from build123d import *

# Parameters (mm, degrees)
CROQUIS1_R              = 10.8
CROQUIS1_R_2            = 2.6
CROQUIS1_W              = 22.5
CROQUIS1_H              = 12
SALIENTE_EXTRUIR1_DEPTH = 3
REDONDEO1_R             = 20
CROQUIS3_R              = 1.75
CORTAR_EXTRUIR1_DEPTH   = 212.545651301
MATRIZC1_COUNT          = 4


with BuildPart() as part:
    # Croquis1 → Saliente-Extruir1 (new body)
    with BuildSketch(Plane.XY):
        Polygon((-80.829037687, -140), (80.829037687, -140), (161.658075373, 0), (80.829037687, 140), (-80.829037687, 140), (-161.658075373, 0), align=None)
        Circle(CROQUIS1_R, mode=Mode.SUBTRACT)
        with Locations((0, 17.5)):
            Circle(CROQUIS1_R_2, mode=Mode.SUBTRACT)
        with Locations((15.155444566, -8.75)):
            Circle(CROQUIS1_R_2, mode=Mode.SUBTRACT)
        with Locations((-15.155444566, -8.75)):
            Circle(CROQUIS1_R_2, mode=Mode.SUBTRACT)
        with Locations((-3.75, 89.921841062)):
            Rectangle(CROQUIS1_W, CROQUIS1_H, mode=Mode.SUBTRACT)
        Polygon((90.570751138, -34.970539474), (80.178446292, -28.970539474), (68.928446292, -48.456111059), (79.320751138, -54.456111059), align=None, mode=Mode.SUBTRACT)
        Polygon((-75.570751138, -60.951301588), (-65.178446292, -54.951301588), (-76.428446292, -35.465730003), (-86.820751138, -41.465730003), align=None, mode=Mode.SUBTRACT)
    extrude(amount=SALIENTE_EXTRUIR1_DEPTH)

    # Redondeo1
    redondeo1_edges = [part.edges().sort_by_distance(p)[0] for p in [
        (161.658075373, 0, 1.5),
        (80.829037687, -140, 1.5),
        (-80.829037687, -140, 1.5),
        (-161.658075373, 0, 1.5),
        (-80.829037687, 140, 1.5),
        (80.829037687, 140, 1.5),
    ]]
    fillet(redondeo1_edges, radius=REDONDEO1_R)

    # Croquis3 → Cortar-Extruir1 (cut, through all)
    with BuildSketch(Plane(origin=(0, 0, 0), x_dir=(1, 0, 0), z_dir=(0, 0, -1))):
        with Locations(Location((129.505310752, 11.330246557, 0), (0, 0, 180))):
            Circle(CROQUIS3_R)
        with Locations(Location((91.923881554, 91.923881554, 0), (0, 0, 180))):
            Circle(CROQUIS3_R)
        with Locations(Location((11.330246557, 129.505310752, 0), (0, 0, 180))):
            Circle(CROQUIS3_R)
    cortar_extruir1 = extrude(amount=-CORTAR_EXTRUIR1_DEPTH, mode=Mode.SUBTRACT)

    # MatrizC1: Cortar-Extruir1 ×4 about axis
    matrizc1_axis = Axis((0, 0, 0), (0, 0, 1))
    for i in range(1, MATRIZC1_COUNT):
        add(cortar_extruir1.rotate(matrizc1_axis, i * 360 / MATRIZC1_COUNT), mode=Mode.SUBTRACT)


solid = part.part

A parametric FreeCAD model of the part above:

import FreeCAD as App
import Part
import Sketcher
from FreeCAD import Vector
Q = App.Units.Quantity


def edges_at(feature, points):
    """Names of the edges that pass closest to the given points."""
    edges = feature.Shape.Edges
    near = lambda p: min(range(len(edges)), key=lambda i: edges[i].distToShape(Part.Vertex(*p))[0])
    return sorted({f"Edge{near(p) + 1}" for p in points})

doc = App.newDocument("Part")
params = doc.addObject("Spreadsheet::Sheet", "Params")
for row, (alias, value) in enumerate([
    ("sketch1_diameter", "5.2 mm"),
    ("sketch1_diameter2", "21.6 mm"),
    ("sketch1_height", "12 mm"),
    ("sketch1_length", "12 mm"),
    ("sketch1_width", "22.5 mm"),
    ("pad1_length", "3 mm"),
    ("fillet_radius", "20 mm"),
    ("sketch2_diameter", "3.5 mm"),
], start=1):
    params.set(f"A{row}", alias)
    params.set(f"B{row}", "=" + value)
    params.setAlias(f"B{row}", alias)

body = doc.addObject("PartDesign::Body", "Body")

sketch1 = body.newObject("Sketcher::SketchObject", "Sketch")
sketch1.AttachmentSupport = (doc.getObject("XY_Plane"), [""])
sketch1.MapMode = "FlatFace"
sketch1.addGeometry([
    Part.LineSegment(Vector(-80.8, -140, 0), Vector(80.8, -140, 0)),
    Part.LineSegment(Vector(80.8, -140, 0), Vector(161.7, 0, 0)),
    Part.LineSegment(Vector(161.7, 0, 0), Vector(80.8, 140, 0)),
    Part.LineSegment(Vector(80.8, 140, 0), Vector(-80.8, 140, 0)),
    Part.LineSegment(Vector(-80.8, 140, 0), Vector(-161.7, 0, 0)),
    Part.LineSegment(Vector(-161.7, 0, 0), Vector(-80.8, -140, 0)),
    Part.LineSegment(Vector(-65.2, -55, 0), Vector(-75.6, -61, 0)),
    Part.LineSegment(Vector(-75.6, -61, 0), Vector(-86.8, -41.5, 0)),
    Part.LineSegment(Vector(-86.8, -41.5, 0), Vector(-76.4, -35.5, 0)),
    Part.LineSegment(Vector(-76.4, -35.5, 0), Vector(-65.2, -55, 0)),
    Part.Circle(Vector(-15.2, -8.8, 0), Vector(0, 0, 1), 2.6),
    Part.Circle(Vector(0, 0, 0), Vector(0, 0, 1), 10.8),
    Part.LineSegment(Vector(80.2, -29, 0), Vector(90.6, -35, 0)),
    Part.LineSegment(Vector(90.6, -35, 0), Vector(79.3, -54.5, 0)),
    Part.LineSegment(Vector(79.3, -54.5, 0), Vector(68.9, -48.5, 0)),
    Part.LineSegment(Vector(68.9, -48.5, 0), Vector(80.2, -29, 0)),
    Part.Circle(Vector(15.2, -8.8, 0), Vector(0, 0, 1), 2.6),
    Part.Circle(Vector(0, 17.5, 0), Vector(0, 0, 1), 2.6),
    Part.LineSegment(Vector(7.5, 83.9, 0), Vector(-15, 83.9, 0)),
    Part.LineSegment(Vector(-15, 83.9, 0), Vector(-15, 95.9, 0)),
    Part.LineSegment(Vector(-15, 95.9, 0), Vector(7.5, 95.9, 0)),
    Part.LineSegment(Vector(7.5, 95.9, 0), Vector(7.5, 83.9, 0)),
], False)
sketch1.addConstraint([
    Sketcher.Constraint("Coincident", 0, 2, 1, 1),
    Sketcher.Constraint("Coincident", 1, 2, 2, 1),
    Sketcher.Constraint("Coincident", 2, 2, 3, 1),
    Sketcher.Constraint("Coincident", 3, 2, 4, 1),
    Sketcher.Constraint("Coincident", 4, 2, 5, 1),
    Sketcher.Constraint("Coincident", 5, 2, 0, 1),
    Sketcher.Constraint("Coincident", 6, 2, 7, 1),
    Sketcher.Constraint("Coincident", 7, 2, 8, 1),
    Sketcher.Constraint("Coincident", 8, 2, 9, 1),
    Sketcher.Constraint("Coincident", 9, 2, 6, 1),
    Sketcher.Constraint("Coincident", 12, 2, 13, 1),
    Sketcher.Constraint("Coincident", 13, 2, 14, 1),
    Sketcher.Constraint("Coincident", 14, 2, 15, 1),
    Sketcher.Constraint("Coincident", 15, 2, 12, 1),
    Sketcher.Constraint("Coincident", 18, 2, 19, 1),
    Sketcher.Constraint("Coincident", 19, 2, 20, 1),
    Sketcher.Constraint("Coincident", 20, 2, 21, 1),
    Sketcher.Constraint("Coincident", 21, 2, 18, 1),
    Sketcher.Constraint("Horizontal", 0),
    Sketcher.Constraint("Horizontal", 3),
    Sketcher.Constraint("Horizontal", 18),
    Sketcher.Constraint("Vertical", 19),
    Sketcher.Constraint("Horizontal", 20),
    Sketcher.Constraint("Vertical", 21),
    Sketcher.Constraint("Coincident", 11, 3, -1, 1),
    Sketcher.Constraint("Equal", 10, 16),
    Sketcher.Constraint("Equal", 16, 17),
    Sketcher.Constraint("Symmetric", 0, 2, 3, 2, -1, 1),
    Sketcher.Constraint("Symmetric", 1, 2, 4, 2, -1, 1),
    Sketcher.Constraint("Symmetric", 10, 3, 16, 3, -2),
    Sketcher.Constraint("PointOnObject", 17, 3, -2),
    Sketcher.Constraint("PointOnObject", 1, 2, -1),
    Sketcher.Constraint("Parallel", 2, 5),
    Sketcher.Constraint("Perpendicular", 5, 6),
    Sketcher.Constraint("Perpendicular", 6, 7),
    Sketcher.Constraint("Perpendicular", 7, 8),
    Sketcher.Constraint("Perpendicular", 8, 9),
    Sketcher.Constraint("Perpendicular", 4, 12),
    Sketcher.Constraint("Perpendicular", 12, 13),
    Sketcher.Constraint("Perpendicular", 13, 14),
    Sketcher.Constraint("Perpendicular", 14, 15),
    Sketcher.Constraint("Vertical", 0, 2, 2, 2),
    Sketcher.Constraint("Equal", 8, 12),
    Sketcher.Constraint("Equal", 9, 13),
    Sketcher.Constraint("Diameter", 10, 5.2),
    Sketcher.Constraint("Diameter", 11, 21.6),
    Sketcher.Constraint("DistanceY", 19, 1, 19, 2, 12.0),
    Sketcher.Constraint("Angle", 1, Q("60 deg")),
    Sketcher.Constraint("Distance", 6, 12.0),
    Sketcher.Constraint("DistanceX", 18, 2, 18, 1, 22.5),
    Sketcher.Constraint("DistanceY", 0, 2, -1, 1, 140.0),
    Sketcher.Constraint("DistanceX", 18, 2, -1, 1, 15.0),
    Sketcher.Constraint("Distance", 7, 22.5),
    Sketcher.Constraint("DistanceY", -1, 1, 17, 3, 17.5),
    Sketcher.Constraint("DistanceY", 10, 3, -1, 1, 8.75),
    Sketcher.Constraint("DistanceX", 8, 2, 10, 3, 61.273002),
    Sketcher.Constraint("DistanceX", 16, 3, 14, 2, 53.773002),
    Sketcher.Constraint("DistanceY", 6, 2, -1, 1, 60.951302),
    Sketcher.Constraint("DistanceX", 0, 1, 0, 2, 161.658075),
    Sketcher.Constraint("DistanceX", 6, 2, -1, 1, 75.570751),
    Sketcher.Constraint("DistanceY", 12, 2, -1, 1, 34.970539),
    Sketcher.Constraint("DistanceY", -1, 1, 18, 2, 83.921841),
])
sketch1.setExpression("Constraints[44]", "Params.sketch1_diameter")
sketch1.setExpression("Constraints[45]", "Params.sketch1_diameter2")
sketch1.setExpression("Constraints[46]", "Params.sketch1_height")
sketch1.setExpression("Constraints[48]", "Params.sketch1_length")
sketch1.setExpression("Constraints[49]", "Params.sketch1_width")
pad1 = body.newObject("PartDesign::Pad", "Pad")
pad1.Profile = sketch1
pad1.setExpression("Length", "Params.pad1_length")
doc.recompute()

fillet = body.newObject("PartDesign::Fillet", "Fillet")
fillet.Base = (pad1, edges_at(pad1, [
    (161.658, 0, 1.5),
    (80.829, -140, 1.5),
    (-80.829, -140, 1.5),
    (-161.658, 0, 1.5),
    (-80.829, 140, 1.5),
    (80.829, 140, 1.5),
]))
fillet.setExpression("Radius", "Params.fillet_radius")

sketch2 = body.newObject("Sketcher::SketchObject", "Sketch001")
sketch2.AttachmentSupport = (doc.getObject("XY_Plane"), [""])
sketch2.MapMode = "FlatFace"
sketch2.addGeometry([
    Part.Circle(Vector(129.5, -11.3, 0), Vector(0, 0, 1), 1.8),
    Part.Circle(Vector(91.9, -91.9, 0), Vector(0, 0, 1), 1.8),
    Part.Circle(Vector(11.3, -129.5, 0), Vector(0, 0, 1), 1.8),
], False)
sketch2.addConstraint([
    Sketcher.Constraint("Equal", 0, 1),
    Sketcher.Constraint("Equal", 1, 2),
    Sketcher.Constraint("Diameter", 0, 3.5),
    Sketcher.Constraint("DistanceX", -1, 1, 0, 3, 129.505311),
    Sketcher.Constraint("DistanceX", -1, 1, 1, 3, 91.923882),
    Sketcher.Constraint("DistanceY", 1, 3, -1, 1, 91.923882),
    Sketcher.Constraint("DistanceY", 2, 3, -1, 1, 129.505311),
    Sketcher.Constraint("DistanceY", 0, 3, -1, 1, 11.330247),
    Sketcher.Constraint("DistanceX", -1, 1, 2, 3, 11.330247),
])
sketch2.setExpression("Constraints[2]", "Params.sketch2_diameter")
pocket1 = body.newObject("PartDesign::Pocket", "Pocket")
pocket1.Profile = sketch2
pocket1.Type = "ThroughAll"
pocket1.Reversed = True
doc.recompute()

polarpattern = body.newObject("PartDesign::PolarPattern", "PolarPattern")
polarpattern.Originals = [pocket1]
polarpattern.Axis = (doc.getObject("Z_Axis"), [""])
polarpattern.Angle = 360
polarpattern.Occurrences = 4
body.Tip = polarpattern

doc.recompute()
